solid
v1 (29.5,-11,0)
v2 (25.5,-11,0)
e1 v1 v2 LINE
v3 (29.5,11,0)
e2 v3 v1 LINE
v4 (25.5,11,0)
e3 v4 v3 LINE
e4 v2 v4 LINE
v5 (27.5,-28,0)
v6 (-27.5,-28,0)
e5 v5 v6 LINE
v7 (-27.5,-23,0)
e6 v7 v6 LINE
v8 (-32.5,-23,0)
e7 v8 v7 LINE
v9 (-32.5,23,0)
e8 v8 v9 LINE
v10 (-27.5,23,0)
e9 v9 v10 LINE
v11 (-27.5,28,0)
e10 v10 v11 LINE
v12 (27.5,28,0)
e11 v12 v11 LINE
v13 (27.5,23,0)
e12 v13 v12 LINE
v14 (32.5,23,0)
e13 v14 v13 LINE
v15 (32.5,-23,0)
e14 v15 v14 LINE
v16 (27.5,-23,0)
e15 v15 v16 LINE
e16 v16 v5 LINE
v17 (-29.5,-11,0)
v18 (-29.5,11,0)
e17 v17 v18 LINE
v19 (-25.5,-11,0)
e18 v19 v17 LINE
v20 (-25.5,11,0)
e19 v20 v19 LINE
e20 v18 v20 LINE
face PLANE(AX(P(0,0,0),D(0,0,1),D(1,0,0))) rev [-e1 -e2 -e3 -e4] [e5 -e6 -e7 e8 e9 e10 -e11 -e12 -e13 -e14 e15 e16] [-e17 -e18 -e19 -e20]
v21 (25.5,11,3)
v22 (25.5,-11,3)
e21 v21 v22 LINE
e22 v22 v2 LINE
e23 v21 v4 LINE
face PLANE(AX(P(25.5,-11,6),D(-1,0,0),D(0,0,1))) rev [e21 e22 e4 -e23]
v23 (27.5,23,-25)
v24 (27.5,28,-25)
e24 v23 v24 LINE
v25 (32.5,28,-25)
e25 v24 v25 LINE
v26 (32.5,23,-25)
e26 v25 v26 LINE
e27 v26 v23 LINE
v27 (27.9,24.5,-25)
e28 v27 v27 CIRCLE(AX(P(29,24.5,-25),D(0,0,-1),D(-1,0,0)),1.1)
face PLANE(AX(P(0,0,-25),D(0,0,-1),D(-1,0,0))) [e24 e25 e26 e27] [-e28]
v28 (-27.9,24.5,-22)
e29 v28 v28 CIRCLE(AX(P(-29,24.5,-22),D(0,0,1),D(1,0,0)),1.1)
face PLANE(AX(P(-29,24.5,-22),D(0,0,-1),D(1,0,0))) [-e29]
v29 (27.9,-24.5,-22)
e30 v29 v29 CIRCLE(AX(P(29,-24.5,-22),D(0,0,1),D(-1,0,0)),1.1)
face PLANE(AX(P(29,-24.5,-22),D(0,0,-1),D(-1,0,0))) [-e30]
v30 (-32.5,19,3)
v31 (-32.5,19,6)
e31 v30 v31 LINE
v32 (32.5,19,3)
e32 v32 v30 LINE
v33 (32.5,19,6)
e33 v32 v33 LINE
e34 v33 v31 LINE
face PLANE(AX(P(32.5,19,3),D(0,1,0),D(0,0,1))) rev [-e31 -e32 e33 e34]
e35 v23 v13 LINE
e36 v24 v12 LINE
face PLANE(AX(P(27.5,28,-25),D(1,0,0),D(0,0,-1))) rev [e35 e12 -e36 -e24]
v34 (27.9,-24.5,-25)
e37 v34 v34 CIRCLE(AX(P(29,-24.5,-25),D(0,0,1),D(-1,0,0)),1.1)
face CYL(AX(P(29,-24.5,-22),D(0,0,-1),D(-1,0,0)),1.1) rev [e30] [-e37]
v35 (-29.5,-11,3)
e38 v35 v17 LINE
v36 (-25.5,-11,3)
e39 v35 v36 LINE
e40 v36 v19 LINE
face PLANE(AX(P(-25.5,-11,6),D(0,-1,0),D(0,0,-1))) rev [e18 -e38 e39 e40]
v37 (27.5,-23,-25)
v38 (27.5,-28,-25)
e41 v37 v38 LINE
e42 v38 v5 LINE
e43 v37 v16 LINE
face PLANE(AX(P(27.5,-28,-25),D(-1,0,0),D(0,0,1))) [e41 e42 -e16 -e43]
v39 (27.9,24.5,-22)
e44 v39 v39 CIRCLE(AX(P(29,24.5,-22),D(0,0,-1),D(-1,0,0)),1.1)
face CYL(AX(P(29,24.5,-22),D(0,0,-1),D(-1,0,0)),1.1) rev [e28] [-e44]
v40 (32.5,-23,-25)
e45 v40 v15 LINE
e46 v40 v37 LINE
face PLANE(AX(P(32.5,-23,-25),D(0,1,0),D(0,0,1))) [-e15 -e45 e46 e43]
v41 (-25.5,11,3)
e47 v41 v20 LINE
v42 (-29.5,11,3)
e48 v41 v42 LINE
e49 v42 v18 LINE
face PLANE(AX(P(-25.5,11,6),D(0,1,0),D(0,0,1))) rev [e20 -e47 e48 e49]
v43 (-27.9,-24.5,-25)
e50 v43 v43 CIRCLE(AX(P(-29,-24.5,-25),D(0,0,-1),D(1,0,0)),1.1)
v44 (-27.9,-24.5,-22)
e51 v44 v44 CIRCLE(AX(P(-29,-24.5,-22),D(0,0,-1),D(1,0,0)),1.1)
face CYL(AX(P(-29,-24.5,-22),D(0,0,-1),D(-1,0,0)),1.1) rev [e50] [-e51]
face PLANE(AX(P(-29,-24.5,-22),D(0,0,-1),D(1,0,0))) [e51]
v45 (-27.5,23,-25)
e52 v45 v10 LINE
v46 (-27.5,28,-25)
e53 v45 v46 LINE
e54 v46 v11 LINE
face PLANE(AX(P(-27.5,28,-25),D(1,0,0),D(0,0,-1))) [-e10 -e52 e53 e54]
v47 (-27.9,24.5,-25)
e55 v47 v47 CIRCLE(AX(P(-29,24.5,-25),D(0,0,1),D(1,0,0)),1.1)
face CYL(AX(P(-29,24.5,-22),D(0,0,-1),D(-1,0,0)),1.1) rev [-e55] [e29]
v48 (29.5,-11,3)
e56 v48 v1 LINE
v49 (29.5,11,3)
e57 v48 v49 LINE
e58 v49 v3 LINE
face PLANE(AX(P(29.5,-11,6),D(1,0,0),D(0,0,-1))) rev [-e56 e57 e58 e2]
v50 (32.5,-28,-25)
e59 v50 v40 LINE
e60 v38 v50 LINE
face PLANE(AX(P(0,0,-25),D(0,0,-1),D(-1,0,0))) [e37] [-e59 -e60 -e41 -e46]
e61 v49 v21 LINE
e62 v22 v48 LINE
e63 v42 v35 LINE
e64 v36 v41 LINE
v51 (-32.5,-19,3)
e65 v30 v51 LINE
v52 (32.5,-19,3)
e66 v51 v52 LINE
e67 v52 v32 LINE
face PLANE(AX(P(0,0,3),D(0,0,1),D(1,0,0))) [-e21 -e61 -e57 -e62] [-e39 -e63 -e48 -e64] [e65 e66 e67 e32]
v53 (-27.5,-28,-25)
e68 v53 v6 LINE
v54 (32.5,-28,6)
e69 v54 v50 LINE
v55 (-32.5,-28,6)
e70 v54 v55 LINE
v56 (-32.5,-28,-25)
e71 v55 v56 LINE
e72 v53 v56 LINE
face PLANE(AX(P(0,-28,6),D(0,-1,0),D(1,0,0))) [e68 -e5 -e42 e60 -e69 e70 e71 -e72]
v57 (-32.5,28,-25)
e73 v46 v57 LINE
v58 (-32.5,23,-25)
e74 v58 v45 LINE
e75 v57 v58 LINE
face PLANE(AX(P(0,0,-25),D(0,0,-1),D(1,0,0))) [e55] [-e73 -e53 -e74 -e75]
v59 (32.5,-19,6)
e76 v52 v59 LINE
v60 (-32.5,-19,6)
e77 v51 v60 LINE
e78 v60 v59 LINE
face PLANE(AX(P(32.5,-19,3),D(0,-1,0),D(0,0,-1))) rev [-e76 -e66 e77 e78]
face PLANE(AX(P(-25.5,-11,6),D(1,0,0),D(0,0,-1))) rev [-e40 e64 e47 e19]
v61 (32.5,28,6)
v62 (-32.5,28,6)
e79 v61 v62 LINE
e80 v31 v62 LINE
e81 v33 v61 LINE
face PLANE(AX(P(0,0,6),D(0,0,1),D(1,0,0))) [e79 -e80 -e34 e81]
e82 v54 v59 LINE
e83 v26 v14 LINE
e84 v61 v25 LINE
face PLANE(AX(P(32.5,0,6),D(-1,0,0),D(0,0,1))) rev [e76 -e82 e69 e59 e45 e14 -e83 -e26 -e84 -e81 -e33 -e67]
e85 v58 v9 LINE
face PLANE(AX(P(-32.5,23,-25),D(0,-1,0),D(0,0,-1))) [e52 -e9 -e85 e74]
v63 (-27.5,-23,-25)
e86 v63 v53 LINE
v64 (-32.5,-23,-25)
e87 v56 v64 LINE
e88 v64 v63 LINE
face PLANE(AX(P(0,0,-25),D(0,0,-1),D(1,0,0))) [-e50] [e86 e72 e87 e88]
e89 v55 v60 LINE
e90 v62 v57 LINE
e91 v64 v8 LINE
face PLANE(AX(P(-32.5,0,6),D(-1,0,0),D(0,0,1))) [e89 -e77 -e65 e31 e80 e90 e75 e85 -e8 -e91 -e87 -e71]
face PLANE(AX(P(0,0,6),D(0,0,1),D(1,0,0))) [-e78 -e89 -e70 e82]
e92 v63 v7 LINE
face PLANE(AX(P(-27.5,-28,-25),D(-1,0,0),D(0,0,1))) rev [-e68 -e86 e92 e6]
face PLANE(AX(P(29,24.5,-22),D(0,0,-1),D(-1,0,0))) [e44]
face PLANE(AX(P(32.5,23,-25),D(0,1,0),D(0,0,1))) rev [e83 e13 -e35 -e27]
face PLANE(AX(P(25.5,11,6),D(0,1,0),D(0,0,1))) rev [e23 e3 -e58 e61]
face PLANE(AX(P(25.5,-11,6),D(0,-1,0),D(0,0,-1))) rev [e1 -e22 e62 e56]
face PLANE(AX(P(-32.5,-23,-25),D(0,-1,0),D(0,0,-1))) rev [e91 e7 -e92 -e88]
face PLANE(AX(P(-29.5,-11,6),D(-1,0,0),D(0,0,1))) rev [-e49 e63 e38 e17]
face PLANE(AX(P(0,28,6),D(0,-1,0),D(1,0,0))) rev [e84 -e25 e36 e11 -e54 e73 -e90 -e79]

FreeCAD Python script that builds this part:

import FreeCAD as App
import Part
import Sketcher

doc = App.newDocument("Part")
body = doc.addObject("PartDesign::Body", "Body")

# Sketch on XY plane
sketch1 = body.newObject("Sketcher::SketchObject", "Sketch")
sketch1.AttachmentSupport = (doc.getObject("XY_Plane"), [""])
sketch1.MapMode = "FlatFace"
sketch1.addGeometry([
    Part.LineSegment(App.Vector(-32, 28, 0), App.Vector(-32, -28, 0)),
    Part.LineSegment(App.Vector(-32, -28, 0), App.Vector(32, -28, 0)),
    Part.LineSegment(App.Vector(32, -28, 0), App.Vector(32, 28, 0)),
    Part.LineSegment(App.Vector(32, 28, 0), App.Vector(-32, 28, 0)),
], False)
sketch1.addConstraint([
    Sketcher.Constraint("Coincident", 0, 2, 1, 1),
    Sketcher.Constraint("Coincident", 1, 2, 2, 1),
    Sketcher.Constraint("Coincident", 2, 2, 3, 1),
    Sketcher.Constraint("Coincident", 3, 2, 0, 1),
    Sketcher.Constraint("Vertical", 0),
    Sketcher.Constraint("Horizontal", 1),
    Sketcher.Constraint("Vertical", 2),
    Sketcher.Constraint("Horizontal", 3),
    Sketcher.Constraint("Symmetric", 0, 2, 2, 2, -1, 1),
    Sketcher.Constraint("DistanceX", 1, 1, 1, 2, 65.0),
    Sketcher.Constraint("DistanceY", 0, 2, 0, 1, 56.0),
])
pad1 = body.newObject("PartDesign::Pad", "Pad")
pad1.Profile = sketch1
pad1.Length = 6

# Sketch on XY plane
sketch2 = body.newObject("Sketcher::SketchObject", "Sketch001")
sketch2.AttachmentSupport = (doc.getObject("XY_Plane"), [""])
sketch2.MapMode = "FlatFace"
sketch2.AttachmentOffset = App.Placement(App.Vector(0, 0, 6), App.Rotation())
sketch2.addGeometry([
    Part.LineSegment(App.Vector(-32, 19, 0), App.Vector(-32, -19, 0)),
    Part.LineSegment(App.Vector(-32, -19, 0), App.Vector(32, -19, 0)),
    Part.LineSegment(App.Vector(32, -19, 0), App.Vector(32, 19, 0)),
    Part.LineSegment(App.Vector(32, 19, 0), App.Vector(-32, 19, 0)),
], False)
sketch2.addConstraint([
    Sketcher.Constraint("Coincident", 0, 2, 1, 1),
    Sketcher.Constraint("Coincident", 1, 2, 2, 1),
    Sketcher.Constraint("Coincident", 2, 2, 3, 1),
    Sketcher.Constraint("Coincident", 3, 2, 0, 1),
    Sketcher.Constraint("Vertical", 0),
    Sketcher.Constraint("Horizontal", 1),
    Sketcher.Constraint("Vertical", 2),
    Sketcher.Constraint("Horizontal", 3),
    Sketcher.Constraint("Symmetric", 0, 2, 2, 2, -1, 1),
    Sketcher.Constraint("DistanceX", 1, 1, 1, 2, 65.0),
    Sketcher.Constraint("DistanceY", 0, 2, 0, 1, 38.0),
])
pocket1 = body.newObject("PartDesign::Pocket", "Pocket")
pocket1.Profile = sketch2
pocket1.Length = 3

# Sketch on XY plane
sketch3 = body.newObject("Sketcher::SketchObject", "Sketch002")
sketch3.AttachmentSupport = (doc.getObject("XY_Plane"), [""])
sketch3.MapMode = "FlatFace"
sketch3.addGeometry([
    Part.LineSegment(App.Vector(32, 28, 0), App.Vector(32, 23, 0)),
    Part.LineSegment(App.Vector(32, 23, 0), App.Vector(28, 23, 0)),
    Part.LineSegment(App.Vector(28, 23, 0), App.Vector(28, 28, 0)),
    Part.LineSegment(App.Vector(28, 28, 0), App.Vector(32, 28, 0)),
], False)
sketch3.addConstraint([
    Sketcher.Constraint("Coincident", 0, 2, 1, 1),
    Sketcher.Constraint("Coincident", 1, 2, 2, 1),
    Sketcher.Constraint("Coincident", 2, 2, 3, 1),
    Sketcher.Constraint("Coincident", 3, 2, 0, 1),
    Sketcher.Constraint("Vertical", 0),
    Sketcher.Constraint("Horizontal", 1),
    Sketcher.Constraint("Vertical", 2),
    Sketcher.Constraint("Horizontal", 3),
    Sketcher.Constraint("Equal", 3, 0),
    Sketcher.Constraint("DistanceX", 1, 2, 1, 1, 5.0),
    Sketcher.Constraint("DistanceY", -1, 1, 0, 2, 23.0),
    Sketcher.Constraint("DistanceX", -1, 1, 0, 2, 32.5),
])
pad2 = body.newObject("PartDesign::Pad", "Pad001")
pad2.Profile = sketch3
pad2.Length = 25
pad2.Reversed = True

# Sketch on XY plane
sketch4 = body.newObject("Sketcher::SketchObject", "Sketch003")
sketch4.AttachmentSupport = (doc.getObject("XY_Plane"), [""])
sketch4.MapMode = "FlatFace"
sketch4.AttachmentOffset = App.Placement(App.Vector(0, 0, -25), App.Rotation())
sketch4.addGeometry(Part.Circle(App.Vector(29, 24.5, 0), App.Vector(0, 0, 1), 1.1), False)
sketch4.addConstraint([
    Sketcher.Constraint("Diameter", 0, 2.2),
    Sketcher.Constraint("DistanceX", -1, 1, 0, 3, 29.0),
    Sketcher.Constraint("DistanceY", -1, 1, 0, 3, 24.5),
])
pocket2 = body.newObject("PartDesign::Pocket", "Pocket001")
pocket2.Profile = sketch4
pocket2.Length = 3
pocket2.Reversed = True

# Sketch on XY plane
sketch5 = body.newObject("Sketcher::SketchObject", "Sketch004")
sketch5.AttachmentSupport = (doc.getObject("XY_Plane"), [""])
sketch5.MapMode = "FlatFace"
sketch5.addGeometry([
    Part.LineSegment(App.Vector(29.5, 11, 0), App.Vector(29.5, -11, 0)),  # 0
    Part.LineSegment(App.Vector(29.5, -11, 0), App.Vector(25.5, -11, 0)),  # 1
    Part.LineSegment(App.Vector(25.5, -11, 0), App.Vector(25.5, 11, 0)),  # 2
    Part.LineSegment(App.Vector(25.5, 11, 0), App.Vector(29.5, 11, 0)),  # 3
    Part.LineSegment(App.Vector(-25.5, 11, 0), App.Vector(-25.5, -11, 0)),  # 4
    Part.LineSegment(App.Vector(-25.5, -11, 0), App.Vector(-29.5, -11, 0)),  # 5
    Part.LineSegment(App.Vector(-29.5, -11, 0), App.Vector(-29.5, 11, 0)),  # 6
    Part.LineSegment(App.Vector(-29.5, 11, 0), App.Vector(-25.5, 11, 0)),  # 7
], False)
sketch5.addConstraint([
    Sketcher.Constraint("Coincident", 0, 2, 1, 1),
    Sketcher.Constraint("Coincident", 1, 2, 2, 1),
    Sketcher.Constraint("Coincident", 2, 2, 3, 1),
    Sketcher.Constraint("Coincident", 3, 2, 0, 1),
    Sketcher.Constraint("Coincident", 4, 2, 5, 1),
    Sketcher.Constraint("Coincident", 5, 2, 6, 1),
    Sketcher.Constraint("Coincident", 6, 2, 7, 1),
    Sketcher.Constraint("Coincident", 7, 2, 4, 1),
    Sketcher.Constraint("Vertical", 0),
    Sketcher.Constraint("Horizontal", 1),
    Sketcher.Constraint("Vertical", 2),
    Sketcher.Constraint("Horizontal", 3),
    Sketcher.Constraint("Vertical", 4),
    Sketcher.Constraint("Horizontal", 5),
    Sketcher.Constraint("Vertical", 6),
    Sketcher.Constraint("Horizontal", 7),
    Sketcher.Constraint("Symmetric", 2, 2, 4, 2, -1, 1),
    Sketcher.Constraint("Symmetric", 0, 2, 6, 2, -1, 1),
    Sketcher.Constraint("Horizontal", 1, 2, 4, 2),
    Sketcher.Constraint("DistanceX", 1, 2, 1, 1, 4.0),
    Sketcher.Constraint("DistanceY", 0, 2, 0, 1, 22.0),
    Sketcher.Constraint("DistanceX", 4, 2, 1, 2, 51.0),
])
pocket3 = body.newObject("PartDesign::Pocket", "Pocket002")
pocket3.Profile = sketch5
pocket3.Type = "ThroughAll"
pocket3.Reversed = True
doc.recompute()

mirrored = body.newObject("PartDesign::Mirrored", "Mirrored")
mirrored.Originals = [pad2, pocket2]
mirrored.MirrorPlane = (doc.getObject("XZ_Plane"), [""])
body.Tip = mirrored
doc.recompute()

mirrored2 = body.newObject("PartDesign::Mirrored", "Mirrored001")
mirrored2.Originals = [pad2, pocket2]
mirrored2.MirrorPlane = (doc.getObject("YZ_Plane"), [""])
body.Tip = mirrored2

# Sketch on XY plane
sketch6 = body.newObject("Sketcher::SketchObject", "Sketch005")
sketch6.AttachmentSupport = (doc.getObject("XY_Plane"), [""])
sketch6.MapMode = "FlatFace"
sketch6.addGeometry([
    Part.LineSegment(App.Vector(-32, -28, 0), App.Vector(-32, -23, 0)),
    Part.LineSegment(App.Vector(-32, -23, 0), App.Vector(-28, -23, 0)),
    Part.LineSegment(App.Vector(-28, -23, 0), App.Vector(-28, -28, 0)),
    Part.LineSegment(App.Vector(-28, -28, 0), App.Vector(-32, -28, 0)),
], False)
sketch6.addConstraint([
    Sketcher.Constraint("Coincident", 0, 2, 1, 1),
    Sketcher.Constraint("Coincident", 1, 2, 2, 1),
    Sketcher.Constraint("Coincident", 2, 2, 3, 1),
    Sketcher.Constraint("Coincident", 3, 2, 0, 1),
    Sketcher.Constraint("Vertical", 0),
    Sketcher.Constraint("Horizontal", 1),
    Sketcher.Constraint("Vertical", 2),
    Sketcher.Constraint("Horizontal", 3),
    Sketcher.Constraint("Equal", 3, 0),
    Sketcher.Constraint("DistanceX", 1, 1, 1, 2, 5.0),
    Sketcher.Constraint("DistanceY", 0, 2, -1, 1, 23.0),
    Sketcher.Constraint("DistanceX", 0, 2, -1, 1, 32.5),
])
pad3 = body.newObject("PartDesign::Pad", "Pad002")
pad3.Profile = sketch6
pad3.Length = 25
pad3.Reversed = True

# Sketch on XY plane
sketch7 = body.newObject("Sketcher::SketchObject", "Sketch006")
sketch7.AttachmentSupport = (doc.getObject("XY_Plane"), [""])
sketch7.MapMode = "FlatFace"
sketch7.AttachmentOffset = App.Placement(App.Vector(0, 0, -25), App.Rotation())
sketch7.addGeometry(Part.Circle(App.Vector(-29, -24.5, 0), App.Vector(0, 0, 1), 1.1), False)
sketch7.addConstraint([
    Sketcher.Constraint("Diameter", 0, 2.2),
    Sketcher.Constraint("DistanceX", 0, 3, -1, 1, 29.0),
    Sketcher.Constraint("DistanceY", 0, 3, -1, 1, 24.5),
])
pocket4 = body.newObject("PartDesign::Pocket", "Pocket003")
pocket4.Profile = sketch7
pocket4.Length = 3
pocket4.Reversed = True

doc.recompute()
